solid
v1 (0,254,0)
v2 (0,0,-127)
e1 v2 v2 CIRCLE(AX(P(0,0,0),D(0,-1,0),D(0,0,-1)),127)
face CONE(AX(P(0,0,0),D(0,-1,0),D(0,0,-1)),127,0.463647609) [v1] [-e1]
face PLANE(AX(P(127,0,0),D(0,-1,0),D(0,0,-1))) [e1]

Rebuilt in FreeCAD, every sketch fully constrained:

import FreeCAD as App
import Part
import Sketcher
from FreeCAD import Vector
Q = App.Units.Quantity


def add_polygon(sketch, points):
    """Adds a closed chain of lines whose ends are joined by coincident constraints."""
    first, n = sketch.GeometryCount, len(points)
    for a, b in zip(points, points[1:] + points[:1]):
        sketch.addGeometry(Part.LineSegment(App.Vector(*a, 0), App.Vector(*b, 0)), False)
    for i in range(n):
        sketch.addConstraint(Sketcher.Constraint("Coincident", first + i, 2, first + (i + 1) % n, 1))

doc = App.newDocument("Part")
body = doc.addObject("PartDesign::Body", "Body")

sketch1 = body.newObject("Sketcher::SketchObject", "Sketch")
sketch1.AttachmentSupport = (doc.getObject("XY_Plane"), [""])
sketch1.MapMode = "FlatFace"
add_polygon(sketch1, [(0, 254), (0, 0), (127, 0)])
sketch1.addConstraint(Sketcher.Constraint("Vertical", 0))
sketch1.addConstraint(Sketcher.Constraint("Horizontal", 1))
sketch1.addConstraint(Sketcher.Constraint("Coincident", 0, 2, -1, 1))
sketch1.addConstraint(Sketcher.Constraint("DistanceX", 1, 1, 1, 2, Q("5 in")))
sketch1.addConstraint(Sketcher.Constraint("DistanceY", 0, 2, 0, 1, Q("10 in")))
revolution = body.newObject("PartDesign::Revolution", "Revolution")
revolution.Profile = sketch1
revolution.ReferenceAxis = (sketch1, ["V_Axis"])
revolution.Angle = 360

doc.recompute()
